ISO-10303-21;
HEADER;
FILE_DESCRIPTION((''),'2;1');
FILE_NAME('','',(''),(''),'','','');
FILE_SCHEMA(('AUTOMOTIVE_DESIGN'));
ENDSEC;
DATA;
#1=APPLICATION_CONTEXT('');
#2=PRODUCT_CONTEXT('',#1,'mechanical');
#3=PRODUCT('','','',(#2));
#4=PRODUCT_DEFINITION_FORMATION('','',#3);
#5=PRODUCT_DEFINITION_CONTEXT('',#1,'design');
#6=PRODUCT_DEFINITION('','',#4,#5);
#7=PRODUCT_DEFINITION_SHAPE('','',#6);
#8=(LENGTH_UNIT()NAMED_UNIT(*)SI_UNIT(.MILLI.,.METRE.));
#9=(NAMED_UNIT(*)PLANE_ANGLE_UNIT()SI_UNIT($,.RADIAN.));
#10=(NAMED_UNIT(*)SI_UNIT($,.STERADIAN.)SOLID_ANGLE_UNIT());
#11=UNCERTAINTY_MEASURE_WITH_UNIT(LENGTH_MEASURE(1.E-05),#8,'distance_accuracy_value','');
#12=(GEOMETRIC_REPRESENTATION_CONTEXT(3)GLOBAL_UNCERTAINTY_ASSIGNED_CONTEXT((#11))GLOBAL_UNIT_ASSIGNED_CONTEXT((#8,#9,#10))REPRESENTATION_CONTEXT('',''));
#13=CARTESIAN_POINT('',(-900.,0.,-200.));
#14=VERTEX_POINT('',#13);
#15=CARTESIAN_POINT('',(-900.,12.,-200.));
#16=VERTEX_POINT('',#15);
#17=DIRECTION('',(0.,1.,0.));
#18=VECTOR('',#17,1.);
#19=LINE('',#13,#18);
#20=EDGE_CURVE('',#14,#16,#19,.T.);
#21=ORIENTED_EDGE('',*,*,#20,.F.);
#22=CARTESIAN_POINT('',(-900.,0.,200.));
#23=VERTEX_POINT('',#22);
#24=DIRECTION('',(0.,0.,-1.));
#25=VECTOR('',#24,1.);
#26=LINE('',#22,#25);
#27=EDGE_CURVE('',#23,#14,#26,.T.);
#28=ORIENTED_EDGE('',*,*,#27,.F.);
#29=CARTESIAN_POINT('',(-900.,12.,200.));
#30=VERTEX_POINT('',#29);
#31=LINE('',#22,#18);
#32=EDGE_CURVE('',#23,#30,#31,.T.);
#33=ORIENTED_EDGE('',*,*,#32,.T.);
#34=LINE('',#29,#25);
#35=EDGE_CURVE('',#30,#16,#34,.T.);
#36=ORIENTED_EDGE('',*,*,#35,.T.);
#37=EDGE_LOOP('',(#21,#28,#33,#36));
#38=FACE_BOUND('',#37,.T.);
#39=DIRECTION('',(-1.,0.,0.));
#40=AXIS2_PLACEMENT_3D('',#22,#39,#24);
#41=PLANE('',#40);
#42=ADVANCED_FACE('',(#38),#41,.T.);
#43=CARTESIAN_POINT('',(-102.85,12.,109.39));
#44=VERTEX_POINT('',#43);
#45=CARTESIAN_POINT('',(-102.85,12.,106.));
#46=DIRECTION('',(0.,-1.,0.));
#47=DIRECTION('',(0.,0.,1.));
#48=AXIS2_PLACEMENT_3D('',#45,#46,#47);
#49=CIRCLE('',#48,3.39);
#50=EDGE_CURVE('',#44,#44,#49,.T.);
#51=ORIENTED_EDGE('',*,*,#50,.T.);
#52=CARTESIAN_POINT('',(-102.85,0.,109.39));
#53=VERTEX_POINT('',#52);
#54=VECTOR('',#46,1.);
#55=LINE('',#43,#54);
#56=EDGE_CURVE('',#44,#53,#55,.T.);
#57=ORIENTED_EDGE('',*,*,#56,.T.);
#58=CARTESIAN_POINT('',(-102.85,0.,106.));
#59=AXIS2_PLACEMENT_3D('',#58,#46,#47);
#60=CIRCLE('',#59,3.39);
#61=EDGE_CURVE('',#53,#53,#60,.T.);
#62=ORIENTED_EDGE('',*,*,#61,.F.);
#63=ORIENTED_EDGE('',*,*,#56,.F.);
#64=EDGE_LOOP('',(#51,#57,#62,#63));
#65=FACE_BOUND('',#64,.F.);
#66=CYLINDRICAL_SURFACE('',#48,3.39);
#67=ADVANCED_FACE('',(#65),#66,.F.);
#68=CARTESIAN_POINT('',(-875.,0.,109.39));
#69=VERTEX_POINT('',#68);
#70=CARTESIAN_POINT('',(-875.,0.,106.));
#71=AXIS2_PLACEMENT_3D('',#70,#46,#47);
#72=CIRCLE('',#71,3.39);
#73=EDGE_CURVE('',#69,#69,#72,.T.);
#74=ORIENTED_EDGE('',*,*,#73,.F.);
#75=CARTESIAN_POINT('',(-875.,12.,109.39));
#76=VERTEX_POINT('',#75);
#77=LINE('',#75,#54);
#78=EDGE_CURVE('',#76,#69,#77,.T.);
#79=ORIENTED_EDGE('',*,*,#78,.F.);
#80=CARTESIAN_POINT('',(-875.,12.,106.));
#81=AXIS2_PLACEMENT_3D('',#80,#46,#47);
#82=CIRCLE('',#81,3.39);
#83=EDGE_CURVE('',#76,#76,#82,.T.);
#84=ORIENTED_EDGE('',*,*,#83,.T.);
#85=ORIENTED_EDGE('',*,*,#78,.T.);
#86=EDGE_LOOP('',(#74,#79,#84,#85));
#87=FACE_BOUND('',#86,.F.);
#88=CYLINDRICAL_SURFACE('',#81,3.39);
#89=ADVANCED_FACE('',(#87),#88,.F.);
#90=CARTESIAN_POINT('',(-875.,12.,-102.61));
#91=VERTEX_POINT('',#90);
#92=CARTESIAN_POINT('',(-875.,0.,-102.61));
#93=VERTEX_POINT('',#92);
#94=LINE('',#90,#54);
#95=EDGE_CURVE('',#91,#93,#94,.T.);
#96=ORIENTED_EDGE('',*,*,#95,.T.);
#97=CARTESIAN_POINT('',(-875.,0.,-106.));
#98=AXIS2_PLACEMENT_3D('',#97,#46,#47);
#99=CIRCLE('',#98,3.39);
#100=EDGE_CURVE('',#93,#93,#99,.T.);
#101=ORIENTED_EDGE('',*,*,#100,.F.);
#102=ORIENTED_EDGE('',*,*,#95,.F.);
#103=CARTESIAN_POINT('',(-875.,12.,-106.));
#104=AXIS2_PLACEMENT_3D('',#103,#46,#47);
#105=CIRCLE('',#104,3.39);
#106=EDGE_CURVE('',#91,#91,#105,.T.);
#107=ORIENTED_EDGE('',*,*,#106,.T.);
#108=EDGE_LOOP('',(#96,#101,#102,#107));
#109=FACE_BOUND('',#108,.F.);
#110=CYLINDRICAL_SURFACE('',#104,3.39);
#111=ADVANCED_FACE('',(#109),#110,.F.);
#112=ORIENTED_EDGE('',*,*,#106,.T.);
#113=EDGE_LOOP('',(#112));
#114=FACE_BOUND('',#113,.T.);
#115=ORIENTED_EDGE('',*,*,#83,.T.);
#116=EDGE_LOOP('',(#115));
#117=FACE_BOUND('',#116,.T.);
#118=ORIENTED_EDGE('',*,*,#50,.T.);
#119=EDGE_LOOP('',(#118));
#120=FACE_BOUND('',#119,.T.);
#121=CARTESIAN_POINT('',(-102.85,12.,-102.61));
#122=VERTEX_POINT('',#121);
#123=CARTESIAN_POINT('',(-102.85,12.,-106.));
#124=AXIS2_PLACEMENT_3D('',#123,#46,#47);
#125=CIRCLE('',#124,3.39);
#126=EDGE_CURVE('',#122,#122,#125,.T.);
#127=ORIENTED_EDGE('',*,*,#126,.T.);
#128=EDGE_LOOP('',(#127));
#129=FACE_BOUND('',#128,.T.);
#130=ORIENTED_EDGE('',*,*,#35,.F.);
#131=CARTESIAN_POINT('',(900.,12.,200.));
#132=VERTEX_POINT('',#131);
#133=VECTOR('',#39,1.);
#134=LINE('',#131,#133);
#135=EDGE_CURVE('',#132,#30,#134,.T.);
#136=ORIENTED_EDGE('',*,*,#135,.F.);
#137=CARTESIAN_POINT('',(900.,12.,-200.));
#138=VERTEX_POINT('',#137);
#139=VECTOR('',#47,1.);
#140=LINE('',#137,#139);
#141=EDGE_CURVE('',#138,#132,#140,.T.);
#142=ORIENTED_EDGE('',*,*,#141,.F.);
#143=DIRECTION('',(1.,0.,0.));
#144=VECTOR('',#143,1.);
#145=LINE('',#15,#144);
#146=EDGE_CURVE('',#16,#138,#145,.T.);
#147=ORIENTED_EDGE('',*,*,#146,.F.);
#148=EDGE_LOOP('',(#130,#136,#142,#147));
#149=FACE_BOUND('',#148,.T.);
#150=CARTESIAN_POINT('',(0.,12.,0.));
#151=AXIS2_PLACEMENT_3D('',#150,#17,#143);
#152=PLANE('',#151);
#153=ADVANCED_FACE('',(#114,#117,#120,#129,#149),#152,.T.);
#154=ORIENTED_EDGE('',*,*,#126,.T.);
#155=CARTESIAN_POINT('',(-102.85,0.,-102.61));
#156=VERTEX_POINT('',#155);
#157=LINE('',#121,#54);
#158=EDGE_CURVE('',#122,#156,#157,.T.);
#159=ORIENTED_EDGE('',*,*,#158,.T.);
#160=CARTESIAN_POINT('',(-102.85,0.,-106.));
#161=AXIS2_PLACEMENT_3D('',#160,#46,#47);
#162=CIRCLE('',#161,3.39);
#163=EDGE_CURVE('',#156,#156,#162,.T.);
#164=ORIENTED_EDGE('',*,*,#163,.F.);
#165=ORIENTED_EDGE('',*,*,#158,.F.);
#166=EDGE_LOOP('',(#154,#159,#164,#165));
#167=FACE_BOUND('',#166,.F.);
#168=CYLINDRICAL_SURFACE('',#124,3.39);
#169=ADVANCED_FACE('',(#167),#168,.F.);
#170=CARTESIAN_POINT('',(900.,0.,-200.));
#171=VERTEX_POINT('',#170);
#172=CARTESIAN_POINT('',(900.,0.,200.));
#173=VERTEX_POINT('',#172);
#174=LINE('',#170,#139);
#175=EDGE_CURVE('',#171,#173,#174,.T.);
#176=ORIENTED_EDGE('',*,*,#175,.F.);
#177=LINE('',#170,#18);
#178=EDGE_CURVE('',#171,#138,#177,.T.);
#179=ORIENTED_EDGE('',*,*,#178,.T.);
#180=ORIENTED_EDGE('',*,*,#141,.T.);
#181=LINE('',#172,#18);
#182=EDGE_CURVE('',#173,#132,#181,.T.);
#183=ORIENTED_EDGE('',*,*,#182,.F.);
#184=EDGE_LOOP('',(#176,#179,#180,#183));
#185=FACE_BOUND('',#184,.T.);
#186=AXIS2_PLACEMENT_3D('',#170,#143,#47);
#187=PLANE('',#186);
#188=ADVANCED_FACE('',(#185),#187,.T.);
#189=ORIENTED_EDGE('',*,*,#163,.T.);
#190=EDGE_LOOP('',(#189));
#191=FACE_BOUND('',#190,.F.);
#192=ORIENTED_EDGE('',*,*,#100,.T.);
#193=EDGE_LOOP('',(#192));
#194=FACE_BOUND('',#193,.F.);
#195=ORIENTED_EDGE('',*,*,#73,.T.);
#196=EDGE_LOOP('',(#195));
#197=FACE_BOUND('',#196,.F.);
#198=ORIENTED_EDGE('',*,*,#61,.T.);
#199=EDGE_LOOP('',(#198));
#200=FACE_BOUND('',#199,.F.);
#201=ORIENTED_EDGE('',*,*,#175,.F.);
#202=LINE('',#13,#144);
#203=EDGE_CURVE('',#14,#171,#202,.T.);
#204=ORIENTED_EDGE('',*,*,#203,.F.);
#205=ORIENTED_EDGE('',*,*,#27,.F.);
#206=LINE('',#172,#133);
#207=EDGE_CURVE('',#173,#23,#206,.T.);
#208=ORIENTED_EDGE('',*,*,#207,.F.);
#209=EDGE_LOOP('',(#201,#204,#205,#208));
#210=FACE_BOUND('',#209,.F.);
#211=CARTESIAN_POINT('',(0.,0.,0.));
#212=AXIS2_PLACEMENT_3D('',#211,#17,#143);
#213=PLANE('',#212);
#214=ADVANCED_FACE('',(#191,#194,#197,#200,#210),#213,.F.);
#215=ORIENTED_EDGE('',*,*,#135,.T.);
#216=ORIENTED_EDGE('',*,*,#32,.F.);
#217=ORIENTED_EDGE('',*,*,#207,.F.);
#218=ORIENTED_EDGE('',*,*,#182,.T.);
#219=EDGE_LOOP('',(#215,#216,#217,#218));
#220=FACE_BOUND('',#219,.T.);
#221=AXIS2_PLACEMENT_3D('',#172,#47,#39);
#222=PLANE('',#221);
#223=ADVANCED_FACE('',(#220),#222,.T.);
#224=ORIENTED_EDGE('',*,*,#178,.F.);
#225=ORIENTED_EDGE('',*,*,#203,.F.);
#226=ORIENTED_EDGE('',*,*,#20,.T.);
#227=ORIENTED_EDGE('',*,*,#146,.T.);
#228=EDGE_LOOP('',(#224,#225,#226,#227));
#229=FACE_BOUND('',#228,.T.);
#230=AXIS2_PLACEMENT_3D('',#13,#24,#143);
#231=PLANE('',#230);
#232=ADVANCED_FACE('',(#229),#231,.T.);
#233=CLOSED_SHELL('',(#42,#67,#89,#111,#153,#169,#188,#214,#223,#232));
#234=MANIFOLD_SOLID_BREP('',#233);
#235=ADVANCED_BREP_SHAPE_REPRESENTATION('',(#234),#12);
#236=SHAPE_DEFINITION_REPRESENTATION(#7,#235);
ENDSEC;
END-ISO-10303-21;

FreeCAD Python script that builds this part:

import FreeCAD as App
import Part
import Sketcher
from FreeCAD import Vector

doc = App.newDocument("Part")
body = doc.addObject("PartDesign::Body", "Body")

sketch1 = body.newObject("Sketcher::SketchObject", "Sketch")
sketch1.AttachmentSupport = (doc.getObject("XZ_Plane"), [""])
sketch1.MapMode = "FlatFace"
sketch1.addGeometry(Part.LineSegment(Vector(-900, 200, 0), Vector(900, 200, 0)), False)
sketch1.addGeometry(Part.LineSegment(Vector(900, 200, 0), Vector(900, -200, 0)), False)
sketch1.addGeometry(Part.LineSegment(Vector(900, -200, 0), Vector(-900, -200, 0)), False)
sketch1.addGeometry(Part.LineSegment(Vector(-900, -200, 0), Vector(-900, 200, 0)), False)
sketch1.addConstraint(Sketcher.Constraint("Coincident", 0, 2, 1, 1))
sketch1.addConstraint(Sketcher.Constraint("Coincident", 1, 2, 2, 1))
sketch1.addConstraint(Sketcher.Constraint("Coincident", 2, 2, 3, 1))
sketch1.addConstraint(Sketcher.Constraint("Coincident", 3, 2, 0, 1))
sketch1.addConstraint(Sketcher.Constraint("Horizontal", 0))
sketch1.addConstraint(Sketcher.Constraint("Vertical", 1))
sketch1.addConstraint(Sketcher.Constraint("Horizontal", 2))
sketch1.addConstraint(Sketcher.Constraint("Vertical", 3))
sketch1.addConstraint(Sketcher.Constraint("Symmetric", 0, 2, 2, 2, -1, 1))
sketch1.addConstraint(Sketcher.Constraint("DistanceX", 0, 1, 0, 2, 1800.0))
sketch1.addConstraint(Sketcher.Constraint("DistanceY", 1, 2, 1, 1, 400.0))
pad1 = body.newObject("PartDesign::Pad", "Pad")
pad1.Profile = sketch1
pad1.Length = 12
pad1.Reversed = True

sketch2 = body.newObject("Sketcher::SketchObject", "Sketch001")
sketch2.AttachmentSupport = (doc.getObject("XZ_Plane"), [""])
sketch2.MapMode = "FlatFace"
sketch2.AttachmentOffset = App.Placement(Vector(0, 0, -12), App.Rotation())
sketch2.addGeometry(Part.Circle(Vector(-875, -106, 0), Vector(0, 0, 1), 3.4), False)
sketch2.addGeometry(Part.Circle(Vector(-102.8, -106, 0), Vector(0, 0, 1), 3.4), False)
sketch2.addGeometry(Part.Circle(Vector(-102.8, 106, 0), Vector(0, 0, 1), 3.4), False)
sketch2.addGeometry(Part.Circle(Vector(-875, 106, 0), Vector(0, 0, 1), 3.4), False)
sketch2.addConstraint(Sketcher.Constraint("Equal", 0, 1))
sketch2.addConstraint(Sketcher.Constraint("Equal", 1, 2))
sketch2.addConstraint(Sketcher.Constraint("Equal", 2, 3))
sketch2.addConstraint(Sketcher.Constraint("Symmetric", 1, 3, 2, 3, -1))
sketch2.addConstraint(Sketcher.Constraint("Symmetric", 0, 3, 3, 3, -1))
sketch2.addConstraint(Sketcher.Constraint("Horizontal", 0, 3, 1, 3))
sketch2.addConstraint(Sketcher.Constraint("Diameter", 0, 6.78))
sketch2.addConstraint(Sketcher.Constraint("DistanceX", 0, 3, -1, 1, 875.0))
sketch2.addConstraint(Sketcher.Constraint("DistanceY", 0, 3, -1, 1, 106.0))
sketch2.addConstraint(Sketcher.Constraint("DistanceX", 1, 3, -1, 1, 102.85))
doc.recompute()
hole = body.newObject("PartDesign::Hole", "Hole")
hole.Profile = sketch2
hole.ThreadType = "None"
hole.Diameter = 6.78
hole.DepthType = "ThroughAll"
hole.Reversed = True

doc.recompute()
